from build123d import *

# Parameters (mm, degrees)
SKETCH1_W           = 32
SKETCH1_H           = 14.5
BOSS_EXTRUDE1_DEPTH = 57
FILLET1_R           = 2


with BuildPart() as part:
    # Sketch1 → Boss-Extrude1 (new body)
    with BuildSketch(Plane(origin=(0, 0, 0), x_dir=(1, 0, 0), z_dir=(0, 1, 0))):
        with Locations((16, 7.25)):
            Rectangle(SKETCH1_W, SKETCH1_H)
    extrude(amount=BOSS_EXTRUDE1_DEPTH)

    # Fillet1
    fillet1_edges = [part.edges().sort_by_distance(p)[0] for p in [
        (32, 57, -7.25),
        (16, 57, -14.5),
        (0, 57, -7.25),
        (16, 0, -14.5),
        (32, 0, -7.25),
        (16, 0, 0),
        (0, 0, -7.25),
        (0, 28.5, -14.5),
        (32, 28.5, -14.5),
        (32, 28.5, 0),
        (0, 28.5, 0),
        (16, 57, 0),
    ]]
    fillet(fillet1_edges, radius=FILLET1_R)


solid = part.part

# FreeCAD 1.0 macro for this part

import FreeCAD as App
import Part
import Sketcher
from FreeCAD import Vector
Q = App.Units.Quantity

doc = App.newDocument("Part")
params = doc.addObject("Spreadsheet::Sheet", "Params")
for row, (alias, value) in enumerate([
    ("sketch1_width", "32 mm"),
    ("sketch1_height", "14.5 mm"),
    ("pad1_length", "57 mm"),
    ("fillet_radius", "2 mm"),
], start=1):
    params.set(f"A{row}", alias)
    params.set(f"B{row}", "=" + value)
    params.setAlias(f"B{row}", alias)

body = doc.addObject("PartDesign::Body", "Body")

sketch1 = body.newObject("Sketcher::SketchObject", "Sketch")
sketch1.AttachmentSupport = (doc.getObject("XZ_Plane"), [""])
sketch1.MapMode = "FlatFace"
sketch1.addGeometry(Part.LineSegment(Vector(0, -14, 0), Vector(0, 0, 0)), False)
sketch1.addGeometry(Part.LineSegment(Vector(0, 0, 0), Vector(32, 0, 0)), False)
sketch1.addGeometry(Part.LineSegment(Vector(32, 0, 0), Vector(32, -14, 0)), False)
sketch1.addGeometry(Part.LineSegment(Vector(32, -14, 0), Vector(0, -14, 0)), False)
sketch1.addConstraint(Sketcher.Constraint("Coincident", 0, 2, 1, 1))
sketch1.addConstraint(Sketcher.Constraint("Coincident", 1, 2, 2, 1))
sketch1.addConstraint(Sketcher.Constraint("Coincident", 2, 2, 3, 1))
sketch1.addConstraint(Sketcher.Constraint("Coincident", 3, 2, 0, 1))
sketch1.addConstraint(Sketcher.Constraint("Vertical", 0))
sketch1.addConstraint(Sketcher.Constraint("Horizontal", 1))
sketch1.addConstraint(Sketcher.Constraint("Vertical", 2))
sketch1.addConstraint(Sketcher.Constraint("Horizontal", 3))
sketch1.addConstraint(Sketcher.Constraint("Coincident", 0, 2, -1, 1))
sketch1.addConstraint(Sketcher.Constraint("DistanceX", 1, 1, 1, 2, Q("32 mm")))
sketch1.addConstraint(Sketcher.Constraint("DistanceY", 0, 1, 0, 2, Q("14.5 mm")))
sketch1.setExpression("Constraints[9]", "Params.sketch1_width")
sketch1.setExpression("Constraints[10]", "Params.sketch1_height")
pad1 = body.newObject("PartDesign::Pad", "Pad")
pad1.Profile = sketch1
pad1.setExpression("Length", "Params.pad1_length")
pad1.Reversed = True
doc.recompute()

fillet = body.newObject("PartDesign::Fillet", "Fillet")
fillet.Base = (pad1, ["Edge1"])
fillet.UseAllEdges = True
fillet.setExpression("Radius", "Params.fillet_radius")

doc.recompute()
